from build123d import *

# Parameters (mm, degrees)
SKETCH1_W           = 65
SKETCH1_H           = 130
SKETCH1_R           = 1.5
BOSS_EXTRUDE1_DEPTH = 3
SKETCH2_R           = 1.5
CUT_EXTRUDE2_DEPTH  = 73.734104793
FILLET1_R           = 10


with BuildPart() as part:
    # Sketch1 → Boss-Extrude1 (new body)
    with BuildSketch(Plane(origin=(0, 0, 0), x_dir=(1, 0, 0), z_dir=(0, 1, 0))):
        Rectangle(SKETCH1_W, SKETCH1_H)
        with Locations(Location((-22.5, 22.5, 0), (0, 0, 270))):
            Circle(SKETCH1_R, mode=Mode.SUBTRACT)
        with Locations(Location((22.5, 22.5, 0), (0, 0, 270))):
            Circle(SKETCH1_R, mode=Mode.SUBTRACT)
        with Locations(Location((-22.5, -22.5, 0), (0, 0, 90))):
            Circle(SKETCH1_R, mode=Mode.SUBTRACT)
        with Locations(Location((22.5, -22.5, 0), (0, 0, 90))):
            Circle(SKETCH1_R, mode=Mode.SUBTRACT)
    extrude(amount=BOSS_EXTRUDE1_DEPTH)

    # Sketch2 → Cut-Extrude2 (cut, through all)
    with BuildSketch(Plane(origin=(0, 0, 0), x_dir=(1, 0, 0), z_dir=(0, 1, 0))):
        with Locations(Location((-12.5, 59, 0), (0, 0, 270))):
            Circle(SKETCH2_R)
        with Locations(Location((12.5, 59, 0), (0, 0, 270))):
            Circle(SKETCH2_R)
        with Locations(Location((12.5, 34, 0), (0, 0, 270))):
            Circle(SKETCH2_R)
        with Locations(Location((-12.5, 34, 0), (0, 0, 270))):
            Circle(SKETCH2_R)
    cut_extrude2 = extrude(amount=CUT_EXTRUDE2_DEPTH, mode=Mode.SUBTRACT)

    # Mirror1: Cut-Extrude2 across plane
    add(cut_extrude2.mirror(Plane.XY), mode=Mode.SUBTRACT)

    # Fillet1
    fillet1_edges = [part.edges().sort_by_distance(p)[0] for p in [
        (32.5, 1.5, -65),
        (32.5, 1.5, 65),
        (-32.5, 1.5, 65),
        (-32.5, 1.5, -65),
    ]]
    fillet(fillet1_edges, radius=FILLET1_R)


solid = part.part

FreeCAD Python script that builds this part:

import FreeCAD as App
import Part
import Sketcher


def edges_at(feature, points):
    """Names of the edges that pass closest to the given points."""
    edges = feature.Shape.Edges
    near = lambda p: min(range(len(edges)), key=lambda i: edges[i].distToShape(Part.Vertex(*p))[0])
    return sorted({f"Edge{near(p) + 1}" for p in points})

doc = App.newDocument("Part")
body = doc.addObject("PartDesign::Body", "Body")

# Sketch on XZ plane
sketch1 = body.newObject("Sketcher::SketchObject", "Sketch")
sketch1.AttachmentSupport = (doc.getObject("XZ_Plane"), [""])
sketch1.MapMode = "FlatFace"
sketch1.addGeometry([
    Part.LineSegment(App.Vector(-32.5, -65, 0), App.Vector(-32.5, 65, 0)),  # 0
    Part.LineSegment(App.Vector(-32.5, 65, 0), App.Vector(32.5, 65, 0)),  # 1
    Part.LineSegment(App.Vector(32.5, 65, 0), App.Vector(32.5, -65, 0)),  # 2
    Part.LineSegment(App.Vector(32.5, -65, 0), App.Vector(-32.5, -65, 0)),  # 3
    Part.Circle(App.Vector(-22.5, 22.5, 0), App.Vector(0, 0, 1), 1.5),  # 4
    Part.Circle(App.Vector(22.5, 22.5, 0), App.Vector(0, 0, 1), 1.5),  # 5
    Part.Circle(App.Vector(-22.5, -22.5, 0), App.Vector(0, 0, 1), 1.5),  # 6
    Part.Circle(App.Vector(22.5, -22.5, 0), App.Vector(0, 0, 1), 1.5),  # 7
], False)
sketch1.addConstraint([
    Sketcher.Constraint("Coincident", 0, 2, 1, 1),
    Sketcher.Constraint("Coincident", 1, 2, 2, 1),
    Sketcher.Constraint("Coincident", 2, 2, 3, 1),
    Sketcher.Constraint("Coincident", 3, 2, 0, 1),
    Sketcher.Constraint("Vertical", 0),
    Sketcher.Constraint("Horizontal", 1),
    Sketcher.Constraint("Vertical", 2),
    Sketcher.Constraint("Horizontal", 3),
    Sketcher.Constraint("Equal", 4, 5),
    Sketcher.Constraint("Equal", 5, 6),
    Sketcher.Constraint("Equal", 6, 7),
    Sketcher.Constraint("Symmetric", 5, 3, 6, 3, -1, 1),
    Sketcher.Constraint("Symmetric", 4, 3, 7, 3, -1, 1),
    Sketcher.Constraint("Symmetric", 0, 2, 2, 2, -1, 1),
    Sketcher.Constraint("Symmetric", 4, 3, 5, 3, -2),
    Sketcher.Constraint("Diameter", 4, 3.0),
    Sketcher.Constraint("DistanceX", 1, 1, 1, 2, 65.0),
    Sketcher.Constraint("DistanceY", 0, 1, 0, 2, 130.0),
    Sketcher.Constraint("DistanceX", 4, 3, 5, 3, 45.0),
    Sketcher.Constraint("DistanceY", 6, 3, 4, 3, 45.0),
])
pad1 = body.newObject("PartDesign::Pad", "Pad")
pad1.Profile = sketch1
pad1.Length = 3
pad1.Reversed = True

# Sketch on XZ plane
sketch2 = body.newObject("Sketcher::SketchObject", "Sketch001")
sketch2.AttachmentSupport = (doc.getObject("XZ_Plane"), [""])
sketch2.MapMode = "FlatFace"
sketch2.addGeometry([
    Part.Circle(App.Vector(-12.5, -59, 0), App.Vector(0, 0, 1), 1.5),
    Part.Circle(App.Vector(12.5, -59, 0), App.Vector(0, 0, 1), 1.5),
    Part.Circle(App.Vector(12.5, -34, 0), App.Vector(0, 0, 1), 1.5),
    Part.Circle(App.Vector(-12.5, -34, 0), App.Vector(0, 0, 1), 1.5),
], False)
sketch2.addConstraint([
    Sketcher.Constraint("Equal", 0, 1),
    Sketcher.Constraint("Equal", 1, 2),
    Sketcher.Constraint("Equal", 2, 3),
    Sketcher.Constraint("Symmetric", 0, 3, 1, 3, -2),
    Sketcher.Constraint("Symmetric", 2, 3, 3, 3, -2),
    Sketcher.Constraint("Vertical", 1, 3, 2, 3),
    Sketcher.Constraint("Diameter", 0, 3.0),
    Sketcher.Constraint("DistanceY", 0, 3, -1, 1, 59.0),
    Sketcher.Constraint("DistanceY", 2, 3, -1, 1, 34.0),
    Sketcher.Constraint("DistanceX", 0, 3, 1, 3, 25.0),
])
pocket1 = body.newObject("PartDesign::Pocket", "Pocket")
pocket1.Profile = sketch2
pocket1.Type = "ThroughAll"
doc.recompute()

mirrored = body.newObject("PartDesign::Mirrored", "Mirrored")
mirrored.Originals = [pocket1]
mirrored.MirrorPlane = (doc.getObject("XY_Plane"), [""])
body.Tip = mirrored
doc.recompute()

fillet = body.newObject("PartDesign::Fillet", "Fillet")
fillet.Base = (mirrored, edges_at(mirrored, [
    (32.5, 1.5, -65),
    (32.5, 1.5, 65),
    (-32.5, 1.5, 65),
    (-32.5, 1.5, -65),
]))
fillet.Radius = 10

doc.recompute()
